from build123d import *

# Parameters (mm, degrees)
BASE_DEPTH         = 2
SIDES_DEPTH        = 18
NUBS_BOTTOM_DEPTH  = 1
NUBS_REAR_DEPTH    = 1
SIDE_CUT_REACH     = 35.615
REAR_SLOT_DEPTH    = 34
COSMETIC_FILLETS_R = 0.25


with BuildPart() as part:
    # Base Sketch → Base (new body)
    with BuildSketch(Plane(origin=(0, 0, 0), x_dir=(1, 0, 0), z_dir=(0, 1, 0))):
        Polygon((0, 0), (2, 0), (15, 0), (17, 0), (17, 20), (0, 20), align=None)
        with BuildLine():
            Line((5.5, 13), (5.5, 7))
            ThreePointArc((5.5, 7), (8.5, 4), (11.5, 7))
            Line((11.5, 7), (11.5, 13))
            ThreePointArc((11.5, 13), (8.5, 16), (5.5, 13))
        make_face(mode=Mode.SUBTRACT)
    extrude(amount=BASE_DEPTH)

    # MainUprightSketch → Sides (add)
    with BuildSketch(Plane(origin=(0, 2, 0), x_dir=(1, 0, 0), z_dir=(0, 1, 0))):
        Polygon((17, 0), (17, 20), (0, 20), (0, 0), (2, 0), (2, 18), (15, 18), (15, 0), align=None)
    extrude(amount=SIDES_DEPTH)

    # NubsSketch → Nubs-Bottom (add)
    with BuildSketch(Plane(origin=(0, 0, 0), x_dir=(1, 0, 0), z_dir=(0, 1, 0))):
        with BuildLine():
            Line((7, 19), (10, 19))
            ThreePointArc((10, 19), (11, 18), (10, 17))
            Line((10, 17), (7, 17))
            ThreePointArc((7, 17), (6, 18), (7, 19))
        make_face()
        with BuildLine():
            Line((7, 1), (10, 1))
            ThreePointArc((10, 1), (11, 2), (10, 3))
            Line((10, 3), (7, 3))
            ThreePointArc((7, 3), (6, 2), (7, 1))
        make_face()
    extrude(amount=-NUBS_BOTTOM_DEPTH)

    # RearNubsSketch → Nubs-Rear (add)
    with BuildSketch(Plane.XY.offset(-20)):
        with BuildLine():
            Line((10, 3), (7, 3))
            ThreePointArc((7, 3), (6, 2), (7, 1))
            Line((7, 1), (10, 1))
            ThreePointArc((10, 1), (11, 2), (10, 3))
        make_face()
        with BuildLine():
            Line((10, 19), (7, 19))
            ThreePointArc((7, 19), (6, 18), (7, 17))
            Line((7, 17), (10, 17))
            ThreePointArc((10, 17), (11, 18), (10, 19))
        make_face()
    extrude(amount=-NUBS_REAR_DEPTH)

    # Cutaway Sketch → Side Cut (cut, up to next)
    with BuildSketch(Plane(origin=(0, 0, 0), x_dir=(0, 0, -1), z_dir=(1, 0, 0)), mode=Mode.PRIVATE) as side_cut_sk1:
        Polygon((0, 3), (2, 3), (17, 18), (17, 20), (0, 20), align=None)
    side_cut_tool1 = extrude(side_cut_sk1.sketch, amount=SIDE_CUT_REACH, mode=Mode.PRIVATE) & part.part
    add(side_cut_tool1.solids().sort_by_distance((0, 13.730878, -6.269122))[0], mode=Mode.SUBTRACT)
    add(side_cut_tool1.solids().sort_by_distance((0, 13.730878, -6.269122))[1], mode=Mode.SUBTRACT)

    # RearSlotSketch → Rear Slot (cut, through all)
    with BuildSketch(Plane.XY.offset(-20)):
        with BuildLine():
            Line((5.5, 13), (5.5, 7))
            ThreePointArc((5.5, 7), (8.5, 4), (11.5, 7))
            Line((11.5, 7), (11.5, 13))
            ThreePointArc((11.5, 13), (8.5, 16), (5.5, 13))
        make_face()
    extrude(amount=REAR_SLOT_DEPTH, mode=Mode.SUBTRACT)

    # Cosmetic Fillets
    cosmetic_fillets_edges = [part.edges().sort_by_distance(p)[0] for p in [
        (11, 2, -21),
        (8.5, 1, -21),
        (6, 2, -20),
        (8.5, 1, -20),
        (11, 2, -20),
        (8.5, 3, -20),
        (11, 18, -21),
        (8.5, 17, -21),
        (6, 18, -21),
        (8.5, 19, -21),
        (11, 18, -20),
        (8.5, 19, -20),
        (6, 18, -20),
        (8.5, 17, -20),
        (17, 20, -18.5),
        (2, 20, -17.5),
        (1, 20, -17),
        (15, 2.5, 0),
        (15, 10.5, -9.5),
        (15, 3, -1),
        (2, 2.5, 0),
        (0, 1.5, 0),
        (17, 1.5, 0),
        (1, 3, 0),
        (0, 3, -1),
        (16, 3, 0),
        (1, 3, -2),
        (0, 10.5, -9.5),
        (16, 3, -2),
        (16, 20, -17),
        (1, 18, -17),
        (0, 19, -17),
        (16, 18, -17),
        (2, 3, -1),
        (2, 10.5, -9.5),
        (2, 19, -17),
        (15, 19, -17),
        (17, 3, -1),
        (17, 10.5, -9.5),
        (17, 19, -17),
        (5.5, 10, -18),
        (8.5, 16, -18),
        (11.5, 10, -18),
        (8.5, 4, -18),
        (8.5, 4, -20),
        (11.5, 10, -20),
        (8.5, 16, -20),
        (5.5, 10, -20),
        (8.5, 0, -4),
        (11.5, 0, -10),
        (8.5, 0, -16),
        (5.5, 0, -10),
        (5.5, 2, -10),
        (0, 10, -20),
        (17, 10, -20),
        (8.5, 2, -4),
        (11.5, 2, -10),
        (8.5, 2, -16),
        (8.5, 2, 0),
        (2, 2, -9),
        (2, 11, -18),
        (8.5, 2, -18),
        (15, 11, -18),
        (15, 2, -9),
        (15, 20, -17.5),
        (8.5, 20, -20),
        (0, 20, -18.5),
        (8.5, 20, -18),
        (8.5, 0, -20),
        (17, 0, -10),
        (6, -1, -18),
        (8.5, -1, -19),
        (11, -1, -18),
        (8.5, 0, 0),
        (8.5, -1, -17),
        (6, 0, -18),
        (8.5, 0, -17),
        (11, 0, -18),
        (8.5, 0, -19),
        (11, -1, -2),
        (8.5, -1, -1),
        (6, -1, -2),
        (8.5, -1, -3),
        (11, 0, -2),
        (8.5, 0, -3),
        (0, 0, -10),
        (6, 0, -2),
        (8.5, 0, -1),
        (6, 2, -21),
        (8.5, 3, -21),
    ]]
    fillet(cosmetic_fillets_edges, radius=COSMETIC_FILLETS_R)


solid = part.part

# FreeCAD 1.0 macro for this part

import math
import FreeCAD as App
import Part
import Sketcher

V = App.Vector

doc = App.newDocument("Part")
body = doc.addObject("PartDesign::Body", "Body")

# Sketch on XZ plane
sketch1 = body.newObject("Sketcher::SketchObject", "Sketch")
sketch1.AttachmentSupport = (doc.getObject("XZ_Plane"), [""])
sketch1.MapMode = "FlatFace"
sketch1.addGeometry(Part.LineSegment(V(0, 0, 0), V(17, 0, 0)), False)
sketch1.addGeometry(Part.LineSegment(V(17, 0, 0), V(17, -20, 0)), False)
sketch1.addGeometry(Part.LineSegment(V(17, -20, 0), V(0, -20, 0)), False)
sketch1.addGeometry(Part.LineSegment(V(0, -20, 0), V(0, 0, 0)), False)
sketch1.addGeometry(Part.LineSegment(V(5.5, -7, 0), V(5.5, -13, 0)), False)
sketch1.addGeometry(Part.ArcOfCircle(Part.Circle(V(8.5, -13, 0), V(0, 0, 1), 3), math.radians(180), math.radians(360)), False)
sketch1.addGeometry(Part.LineSegment(V(11.5, -13, 0), V(11.5, -7, 0)), False)
sketch1.addGeometry(Part.ArcOfCircle(Part.Circle(V(8.5, -7, 0), V(0, 0, 1), 3), math.radians(0), math.radians(180)), False)
sketch1.addConstraint(Sketcher.Constraint("Coincident", 0, 2, 1, 1))
sketch1.addConstraint(Sketcher.Constraint("Coincident", 1, 2, 2, 1))
sketch1.addConstraint(Sketcher.Constraint("Coincident", 2, 2, 3, 1))
sketch1.addConstraint(Sketcher.Constraint("Coincident", 3, 2, 0, 1))
sketch1.addConstraint(Sketcher.Constraint("Tangent", 4, 2, 5, 1))
sketch1.addConstraint(Sketcher.Constraint("Tangent", 5, 2, 6, 1))
sketch1.addConstraint(Sketcher.Constraint("Tangent", 6, 2, 7, 1))
sketch1.addConstraint(Sketcher.Constraint("Tangent", 7, 2, 4, 1))
sketch1.addConstraint(Sketcher.Constraint("Horizontal", 0))
sketch1.addConstraint(Sketcher.Constraint("Vertical", 1))
sketch1.addConstraint(Sketcher.Constraint("Horizontal", 2))
sketch1.addConstraint(Sketcher.Constraint("Vertical", 3))
sketch1.addConstraint(Sketcher.Constraint("Vertical", 4))
sketch1.addConstraint(Sketcher.Constraint("Vertical", 6))
sketch1.addConstraint(Sketcher.Constraint("Coincident", 3, 2, -1, 1))
sketch1.addConstraint(Sketcher.Constraint("Radius", 5, 3.0))
sketch1.addConstraint(Sketcher.Constraint("DistanceX", 0, 1, 0, 2, 17.0))
sketch1.addConstraint(Sketcher.Constraint("DistanceY", 1, 2, 1, 1, 20.0))
sketch1.addConstraint(Sketcher.Constraint("DistanceY", 4, 2, 4, 1, 6.0))
sketch1.addConstraint(Sketcher.Constraint("DistanceY", 5, 3, -1, 1, 13.0))
sketch1.addConstraint(Sketcher.Constraint("DistanceX", -1, 1, 5, 3, 8.5))
pad1 = body.newObject("PartDesign::Pad", "Pad")
pad1.Profile = sketch1
pad1.Length = 2
pad1.Reversed = True

# Sketch on XZ plane
sketch2 = body.newObject("Sketcher::SketchObject", "Sketch001")
sketch2.AttachmentSupport = (doc.getObject("XZ_Plane"), [""])
sketch2.MapMode = "FlatFace"
sketch2.AttachmentOffset = App.Placement(V(0, 0, -2), App.Rotation())
sketch2.addGeometry(Part.LineSegment(V(17, 0, 0), V(17, -20, 0)), False)
sketch2.addGeometry(Part.LineSegment(V(17, -20, 0), V(0, -20, 0)), False)
sketch2.addGeometry(Part.LineSegment(V(0, -20, 0), V(0, 0, 0)), False)
sketch2.addGeometry(Part.LineSegment(V(0, 0, 0), V(2, 0, 0)), False)
sketch2.addGeometry(Part.LineSegment(V(2, 0, 0), V(2, -18, 0)), False)
sketch2.addGeometry(Part.LineSegment(V(2, -18, 0), V(15, -18, 0)), False)
sketch2.addGeometry(Part.LineSegment(V(15, -18, 0), V(15, 0, 0)), False)
sketch2.addGeometry(Part.LineSegment(V(15, 0, 0), V(17, 0, 0)), False)
sketch2.addConstraint(Sketcher.Constraint("Coincident", 0, 2, 1, 1))
sketch2.addConstraint(Sketcher.Constraint("Coincident", 1, 2, 2, 1))
sketch2.addConstraint(Sketcher.Constraint("Coincident", 2, 2, 3, 1))
sketch2.addConstraint(Sketcher.Constraint("Coincident", 3, 2, 4, 1))
sketch2.addConstraint(Sketcher.Constraint("Coincident", 4, 2, 5, 1))
sketch2.addConstraint(Sketcher.Constraint("Coincident", 5, 2, 6, 1))
sketch2.addConstraint(Sketcher.Constraint("Coincident", 6, 2, 7, 1))
sketch2.addConstraint(Sketcher.Constraint("Coincident", 7, 2, 0, 1))
sketch2.addConstraint(Sketcher.Constraint("Vertical", 0))
sketch2.addConstraint(Sketcher.Constraint("Horizontal", 1))
sketch2.addConstraint(Sketcher.Constraint("Vertical", 2))
sketch2.addConstraint(Sketcher.Constraint("Horizontal", 3))
sketch2.addConstraint(Sketcher.Constraint("Vertical", 4))
sketch2.addConstraint(Sketcher.Constraint("Horizontal", 5))
sketch2.addConstraint(Sketcher.Constraint("Vertical", 6))
sketch2.addConstraint(Sketcher.Constraint("Horizontal", 7))
sketch2.addConstraint(Sketcher.Constraint("Coincident", 2, 2, -1, 1))
sketch2.addConstraint(Sketcher.Constraint("PointOnObject", 6, 2, -1))
sketch2.addConstraint(Sketcher.Constraint("Equal", 3, 7))
sketch2.addConstraint(Sketcher.Constraint("DistanceX", 1, 2, 1, 1, 17.0))
sketch2.addConstraint(Sketcher.Constraint("DistanceX", 3, 1, 3, 2, 2.0))
sketch2.addConstraint(Sketcher.Constraint("DistanceY", 0, 2, 0, 1, 20.0))
sketch2.addConstraint(Sketcher.Constraint("DistanceY", 4, 2, 4, 1, 18.0))
pad2 = body.newObject("PartDesign::Pad", "Pad001")
pad2.Profile = sketch2
pad2.Length = 18
pad2.Reversed = True

# Sketch on XZ plane
sketch3 = body.newObject("Sketcher::SketchObject", "Sketch002")
sketch3.AttachmentSupport = (doc.getObject("XZ_Plane"), [""])
sketch3.MapMode = "FlatFace"
sketch3.addGeometry(Part.LineSegment(V(10, -19, 0), V(7, -19, 0)), False)
sketch3.addGeometry(Part.ArcOfCircle(Part.Circle(V(7, -18, 0), V(0, 0, 1), 1), math.radians(90), math.radians(270)), False)
sketch3.addGeometry(Part.LineSegment(V(7, -17, 0), V(10, -17, 0)), False)
sketch3.addGeometry(Part.ArcOfCircle(Part.Circle(V(10, -18, 0), V(0, 0, 1), 1), math.radians(-90), math.radians(90)), False)
sketch3.addGeometry(Part.LineSegment(V(7, -1, 0), V(10, -1, 0)), False)
sketch3.addGeometry(Part.ArcOfCircle(Part.Circle(V(10, -2, 0), V(0, 0, 1), 1), math.radians(-90), math.radians(90)), False)
sketch3.addGeometry(Part.LineSegment(V(10, -3, 0), V(7, -3, 0)), False)
sketch3.addGeometry(Part.ArcOfCircle(Part.Circle(V(7, -2, 0), V(0, 0, 1), 1), math.radians(90), math.radians(270)), False)
sketch3.addConstraint(Sketcher.Constraint("Tangent", 0, 2, 1, 2))
sketch3.addConstraint(Sketcher.Constraint("Tangent", 1, 1, 2, 1))
sketch3.addConstraint(Sketcher.Constraint("Tangent", 2, 2, 3, 2))
sketch3.addConstraint(Sketcher.Constraint("Tangent", 3, 1, 0, 1))
sketch3.addConstraint(Sketcher.Constraint("Tangent", 4, 2, 5, 2))
sketch3.addConstraint(Sketcher.Constraint("Tangent", 5, 1, 6, 1))
sketch3.addConstraint(Sketcher.Constraint("Tangent", 6, 2, 7, 2))
sketch3.addConstraint(Sketcher.Constraint("Tangent", 7, 1, 4, 1))
sketch3.addConstraint(Sketcher.Constraint("Horizontal", 0))
sketch3.addConstraint(Sketcher.Constraint("Horizontal", 2))
sketch3.addConstraint(Sketcher.Constraint("Horizontal", 4))
sketch3.addConstraint(Sketcher.Constraint("Horizontal", 6))
sketch3.addConstraint(Sketcher.Constraint("Equal", 3, 5))
sketch3.addConstraint(Sketcher.Constraint("Vertical", 3, 3, 5, 3))
sketch3.addConstraint(Sketcher.Constraint("Vertical", 1, 3, 7, 3))
sketch3.addConstraint(Sketcher.Constraint("Radius", 1, 1.0))
sketch3.addConstraint(Sketcher.Constraint("DistanceX", 0, 2, 0, 1, 3.0))
sketch3.addConstraint(Sketcher.Constraint("DistanceX", -1, 1, 1, 3, 7.0))
sketch3.addConstraint(Sketcher.Constraint("DistanceY", 1, 3, -1, 1, 18.0))
sketch3.addConstraint(Sketcher.Constraint("DistanceY", 5, 3, -1, 1, 2.0))
pad3 = body.newObject("PartDesign::Pad", "Pad002")
pad3.Profile = sketch3
pad3.Length = 1

# Sketch on XY plane
sketch4 = body.newObject("Sketcher::SketchObject", "Sketch003")
sketch4.AttachmentSupport = (doc.getObject("XY_Plane"), [""])
sketch4.MapMode = "FlatFace"
sketch4.AttachmentOffset = App.Placement(V(0, 0, -20), App.Rotation())
sketch4.addGeometry(Part.LineSegment(V(10, 3, 0), V(7, 3, 0)), False)
sketch4.addGeometry(Part.ArcOfCircle(Part.Circle(V(7, 2, 0), V(0, 0, 1), 1), math.radians(90), math.radians(270)), False)
sketch4.addGeometry(Part.LineSegment(V(7, 1, 0), V(10, 1, 0)), False)
sketch4.addGeometry(Part.ArcOfCircle(Part.Circle(V(10, 2, 0), V(0, 0, 1), 1), math.radians(-90), math.radians(90)), False)
sketch4.addGeometry(Part.LineSegment(V(10, 19, 0), V(7, 19, 0)), False)
sketch4.addGeometry(Part.ArcOfCircle(Part.Circle(V(7, 18, 0), V(0, 0, 1), 1), math.radians(90), math.radians(270)), False)
sketch4.addGeometry(Part.LineSegment(V(7, 17, 0), V(10, 17, 0)), False)
sketch4.addGeometry(Part.ArcOfCircle(Part.Circle(V(10, 18, 0), V(0, 0, 1), 1), math.radians(-90), math.radians(90)), False)
sketch4.addConstraint(Sketcher.Constraint("Tangent", 0, 2, 1, 1))
sketch4.addConstraint(Sketcher.Constraint("Tangent", 1, 2, 2, 1))
sketch4.addConstraint(Sketcher.Constraint("Tangent", 2, 2, 3, 1))
sketch4.addConstraint(Sketcher.Constraint("Tangent", 3, 2, 0, 1))
sketch4.addConstraint(Sketcher.Constraint("Tangent", 4, 2, 5, 1))
sketch4.addConstraint(Sketcher.Constraint("Tangent", 5, 2, 6, 1))
sketch4.addConstraint(Sketcher.Constraint("Tangent", 6, 2, 7, 1))
sketch4.addConstraint(Sketcher.Constraint("Tangent", 7, 2, 4, 1))
sketch4.addConstraint(Sketcher.Constraint("Horizontal", 0))
sketch4.addConstraint(Sketcher.Constraint("Horizontal", 2))
sketch4.addConstraint(Sketcher.Constraint("Horizontal", 4))
sketch4.addConstraint(Sketcher.Constraint("Horizontal", 6))
sketch4.addConstraint(Sketcher.Constraint("Equal", 3, 5))
sketch4.addConstraint(Sketcher.Constraint("Vertical", 1, 3, 5, 3))
sketch4.addConstraint(Sketcher.Constraint("Vertical", 3, 3, 7, 3))
sketch4.addConstraint(Sketcher.Constraint("Radius", 1, 1.0))
sketch4.addConstraint(Sketcher.Constraint("DistanceX", 0, 2, 0, 1, 3.0))
sketch4.addConstraint(Sketcher.Constraint("DistanceX", -1, 1, 1, 3, 7.0))
sketch4.addConstraint(Sketcher.Constraint("DistanceY", -1, 1, 1, 3, 2.0))
sketch4.addConstraint(Sketcher.Constraint("DistanceY", -1, 1, 5, 3, 18.0))
pad4 = body.newObject("PartDesign::Pad", "Pad003")
pad4.Profile = sketch4
pad4.Length = 1
pad4.Reversed = True

# Sketch on YZ plane
sketch5 = body.newObject("Sketcher::SketchObject", "Sketch004")
sketch5.AttachmentSupport = (doc.getObject("YZ_Plane"), [""])
sketch5.MapMode = "FlatFace"
sketch5.addGeometry(Part.LineSegment(V(3, 0, 0), V(3, -2, 0)), False)
sketch5.addGeometry(Part.LineSegment(V(3, -2, 0), V(18, -17, 0)), False)
sketch5.addGeometry(Part.LineSegment(V(18, -17, 0), V(20, -17, 0)), False)
sketch5.addGeometry(Part.LineSegment(V(20, -17, 0), V(20, 0, 0)), False)
sketch5.addGeometry(Part.LineSegment(V(20, 0, 0), V(3, 0, 0)), False)
sketch5.addConstraint(Sketcher.Constraint("Coincident", 0, 2, 1, 1))
sketch5.addConstraint(Sketcher.Constraint("Coincident", 1, 2, 2, 1))
sketch5.addConstraint(Sketcher.Constraint("Coincident", 2, 2, 3, 1))
sketch5.addConstraint(Sketcher.Constraint("Coincident", 3, 2, 4, 1))
sketch5.addConstraint(Sketcher.Constraint("Coincident", 4, 2, 0, 1))
sketch5.addConstraint(Sketcher.Constraint("Vertical", 0))
sketch5.addConstraint(Sketcher.Constraint("Horizontal", 2))
sketch5.addConstraint(Sketcher.Constraint("Vertical", 3))
sketch5.addConstraint(Sketcher.Constraint("Horizontal", 4))
sketch5.addConstraint(Sketcher.Constraint("PointOnObject", 3, 2, -1))
sketch5.addConstraint(Sketcher.Constraint("Equal", 2, 0))
sketch5.addConstraint(Sketcher.Constraint("Equal", 4, 3))
sketch5.addConstraint(Sketcher.Constraint("DistanceX", 2, 1, 2, 2, 2.0))
sketch5.addConstraint(Sketcher.Constraint("DistanceX", 4, 2, 4, 1, 17.0))
sketch5.addConstraint(Sketcher.Constraint("DistanceX", -1, 1, 0, 2, 3.0))
pocket1 = body.newObject("PartDesign::Pocket", "Pocket")
pocket1.Profile = sketch5
pocket1.Type = "UpToFirst"
pocket1.Reversed = True
pocket2 = body.newObject("PartDesign::Pocket", "Pocket001")
pocket2.Profile = sketch5
pocket2.Length = 17
pocket2.Reversed = True

# Sketch on XY plane
sketch6 = body.newObject("Sketcher::SketchObject", "Sketch005")
sketch6.AttachmentSupport = (doc.getObject("XY_Plane"), [""])
sketch6.MapMode = "FlatFace"
sketch6.AttachmentOffset = App.Placement(V(0, 0, -20), App.Rotation())
sketch6.addGeometry(Part.LineSegment(V(5.5, 13, 0), V(5.5, 7, 0)), False)
sketch6.addGeometry(Part.ArcOfCircle(Part.Circle(V(8.5, 7, 0), V(0, 0, 1), 3), math.radians(180), math.radians(360)), False)
sketch6.addGeometry(Part.LineSegment(V(11.5, 7, 0), V(11.5, 13, 0)), False)
sketch6.addGeometry(Part.ArcOfCircle(Part.Circle(V(8.5, 13, 0), V(0, 0, 1), 3), math.radians(0), math.radians(180)), False)
sketch6.addConstraint(Sketcher.Constraint("Tangent", 0, 2, 1, 1))
sketch6.addConstraint(Sketcher.Constraint("Tangent", 1, 2, 2, 1))
sketch6.addConstraint(Sketcher.Constraint("Tangent", 2, 2, 3, 1))
sketch6.addConstraint(Sketcher.Constraint("Tangent", 3, 2, 0, 1))
sketch6.addConstraint(Sketcher.Constraint("Vertical", 0))
sketch6.addConstraint(Sketcher.Constraint("Vertical", 2))
sketch6.addConstraint(Sketcher.Constraint("Radius", 1, 3.0))
sketch6.addConstraint(Sketcher.Constraint("DistanceY", 0, 2, 0, 1, 6.0))
sketch6.addConstraint(Sketcher.Constraint("DistanceY", -1, 1, 1, 3, 7.0))
sketch6.addConstraint(Sketcher.Constraint("DistanceX", -1, 1, 1, 3, 8.5))
pocket3 = body.newObject("PartDesign::Pocket", "Pocket002")
pocket3.Profile = sketch6
pocket3.Type = "ThroughAll"
pocket3.Reversed = True
doc.recompute()

fillet = body.newObject("PartDesign::Fillet", "Fillet")
fillet.Base = (pocket3, ["Edge1"])
fillet.UseAllEdges = True
fillet.Radius = 0.25

doc.recompute()
